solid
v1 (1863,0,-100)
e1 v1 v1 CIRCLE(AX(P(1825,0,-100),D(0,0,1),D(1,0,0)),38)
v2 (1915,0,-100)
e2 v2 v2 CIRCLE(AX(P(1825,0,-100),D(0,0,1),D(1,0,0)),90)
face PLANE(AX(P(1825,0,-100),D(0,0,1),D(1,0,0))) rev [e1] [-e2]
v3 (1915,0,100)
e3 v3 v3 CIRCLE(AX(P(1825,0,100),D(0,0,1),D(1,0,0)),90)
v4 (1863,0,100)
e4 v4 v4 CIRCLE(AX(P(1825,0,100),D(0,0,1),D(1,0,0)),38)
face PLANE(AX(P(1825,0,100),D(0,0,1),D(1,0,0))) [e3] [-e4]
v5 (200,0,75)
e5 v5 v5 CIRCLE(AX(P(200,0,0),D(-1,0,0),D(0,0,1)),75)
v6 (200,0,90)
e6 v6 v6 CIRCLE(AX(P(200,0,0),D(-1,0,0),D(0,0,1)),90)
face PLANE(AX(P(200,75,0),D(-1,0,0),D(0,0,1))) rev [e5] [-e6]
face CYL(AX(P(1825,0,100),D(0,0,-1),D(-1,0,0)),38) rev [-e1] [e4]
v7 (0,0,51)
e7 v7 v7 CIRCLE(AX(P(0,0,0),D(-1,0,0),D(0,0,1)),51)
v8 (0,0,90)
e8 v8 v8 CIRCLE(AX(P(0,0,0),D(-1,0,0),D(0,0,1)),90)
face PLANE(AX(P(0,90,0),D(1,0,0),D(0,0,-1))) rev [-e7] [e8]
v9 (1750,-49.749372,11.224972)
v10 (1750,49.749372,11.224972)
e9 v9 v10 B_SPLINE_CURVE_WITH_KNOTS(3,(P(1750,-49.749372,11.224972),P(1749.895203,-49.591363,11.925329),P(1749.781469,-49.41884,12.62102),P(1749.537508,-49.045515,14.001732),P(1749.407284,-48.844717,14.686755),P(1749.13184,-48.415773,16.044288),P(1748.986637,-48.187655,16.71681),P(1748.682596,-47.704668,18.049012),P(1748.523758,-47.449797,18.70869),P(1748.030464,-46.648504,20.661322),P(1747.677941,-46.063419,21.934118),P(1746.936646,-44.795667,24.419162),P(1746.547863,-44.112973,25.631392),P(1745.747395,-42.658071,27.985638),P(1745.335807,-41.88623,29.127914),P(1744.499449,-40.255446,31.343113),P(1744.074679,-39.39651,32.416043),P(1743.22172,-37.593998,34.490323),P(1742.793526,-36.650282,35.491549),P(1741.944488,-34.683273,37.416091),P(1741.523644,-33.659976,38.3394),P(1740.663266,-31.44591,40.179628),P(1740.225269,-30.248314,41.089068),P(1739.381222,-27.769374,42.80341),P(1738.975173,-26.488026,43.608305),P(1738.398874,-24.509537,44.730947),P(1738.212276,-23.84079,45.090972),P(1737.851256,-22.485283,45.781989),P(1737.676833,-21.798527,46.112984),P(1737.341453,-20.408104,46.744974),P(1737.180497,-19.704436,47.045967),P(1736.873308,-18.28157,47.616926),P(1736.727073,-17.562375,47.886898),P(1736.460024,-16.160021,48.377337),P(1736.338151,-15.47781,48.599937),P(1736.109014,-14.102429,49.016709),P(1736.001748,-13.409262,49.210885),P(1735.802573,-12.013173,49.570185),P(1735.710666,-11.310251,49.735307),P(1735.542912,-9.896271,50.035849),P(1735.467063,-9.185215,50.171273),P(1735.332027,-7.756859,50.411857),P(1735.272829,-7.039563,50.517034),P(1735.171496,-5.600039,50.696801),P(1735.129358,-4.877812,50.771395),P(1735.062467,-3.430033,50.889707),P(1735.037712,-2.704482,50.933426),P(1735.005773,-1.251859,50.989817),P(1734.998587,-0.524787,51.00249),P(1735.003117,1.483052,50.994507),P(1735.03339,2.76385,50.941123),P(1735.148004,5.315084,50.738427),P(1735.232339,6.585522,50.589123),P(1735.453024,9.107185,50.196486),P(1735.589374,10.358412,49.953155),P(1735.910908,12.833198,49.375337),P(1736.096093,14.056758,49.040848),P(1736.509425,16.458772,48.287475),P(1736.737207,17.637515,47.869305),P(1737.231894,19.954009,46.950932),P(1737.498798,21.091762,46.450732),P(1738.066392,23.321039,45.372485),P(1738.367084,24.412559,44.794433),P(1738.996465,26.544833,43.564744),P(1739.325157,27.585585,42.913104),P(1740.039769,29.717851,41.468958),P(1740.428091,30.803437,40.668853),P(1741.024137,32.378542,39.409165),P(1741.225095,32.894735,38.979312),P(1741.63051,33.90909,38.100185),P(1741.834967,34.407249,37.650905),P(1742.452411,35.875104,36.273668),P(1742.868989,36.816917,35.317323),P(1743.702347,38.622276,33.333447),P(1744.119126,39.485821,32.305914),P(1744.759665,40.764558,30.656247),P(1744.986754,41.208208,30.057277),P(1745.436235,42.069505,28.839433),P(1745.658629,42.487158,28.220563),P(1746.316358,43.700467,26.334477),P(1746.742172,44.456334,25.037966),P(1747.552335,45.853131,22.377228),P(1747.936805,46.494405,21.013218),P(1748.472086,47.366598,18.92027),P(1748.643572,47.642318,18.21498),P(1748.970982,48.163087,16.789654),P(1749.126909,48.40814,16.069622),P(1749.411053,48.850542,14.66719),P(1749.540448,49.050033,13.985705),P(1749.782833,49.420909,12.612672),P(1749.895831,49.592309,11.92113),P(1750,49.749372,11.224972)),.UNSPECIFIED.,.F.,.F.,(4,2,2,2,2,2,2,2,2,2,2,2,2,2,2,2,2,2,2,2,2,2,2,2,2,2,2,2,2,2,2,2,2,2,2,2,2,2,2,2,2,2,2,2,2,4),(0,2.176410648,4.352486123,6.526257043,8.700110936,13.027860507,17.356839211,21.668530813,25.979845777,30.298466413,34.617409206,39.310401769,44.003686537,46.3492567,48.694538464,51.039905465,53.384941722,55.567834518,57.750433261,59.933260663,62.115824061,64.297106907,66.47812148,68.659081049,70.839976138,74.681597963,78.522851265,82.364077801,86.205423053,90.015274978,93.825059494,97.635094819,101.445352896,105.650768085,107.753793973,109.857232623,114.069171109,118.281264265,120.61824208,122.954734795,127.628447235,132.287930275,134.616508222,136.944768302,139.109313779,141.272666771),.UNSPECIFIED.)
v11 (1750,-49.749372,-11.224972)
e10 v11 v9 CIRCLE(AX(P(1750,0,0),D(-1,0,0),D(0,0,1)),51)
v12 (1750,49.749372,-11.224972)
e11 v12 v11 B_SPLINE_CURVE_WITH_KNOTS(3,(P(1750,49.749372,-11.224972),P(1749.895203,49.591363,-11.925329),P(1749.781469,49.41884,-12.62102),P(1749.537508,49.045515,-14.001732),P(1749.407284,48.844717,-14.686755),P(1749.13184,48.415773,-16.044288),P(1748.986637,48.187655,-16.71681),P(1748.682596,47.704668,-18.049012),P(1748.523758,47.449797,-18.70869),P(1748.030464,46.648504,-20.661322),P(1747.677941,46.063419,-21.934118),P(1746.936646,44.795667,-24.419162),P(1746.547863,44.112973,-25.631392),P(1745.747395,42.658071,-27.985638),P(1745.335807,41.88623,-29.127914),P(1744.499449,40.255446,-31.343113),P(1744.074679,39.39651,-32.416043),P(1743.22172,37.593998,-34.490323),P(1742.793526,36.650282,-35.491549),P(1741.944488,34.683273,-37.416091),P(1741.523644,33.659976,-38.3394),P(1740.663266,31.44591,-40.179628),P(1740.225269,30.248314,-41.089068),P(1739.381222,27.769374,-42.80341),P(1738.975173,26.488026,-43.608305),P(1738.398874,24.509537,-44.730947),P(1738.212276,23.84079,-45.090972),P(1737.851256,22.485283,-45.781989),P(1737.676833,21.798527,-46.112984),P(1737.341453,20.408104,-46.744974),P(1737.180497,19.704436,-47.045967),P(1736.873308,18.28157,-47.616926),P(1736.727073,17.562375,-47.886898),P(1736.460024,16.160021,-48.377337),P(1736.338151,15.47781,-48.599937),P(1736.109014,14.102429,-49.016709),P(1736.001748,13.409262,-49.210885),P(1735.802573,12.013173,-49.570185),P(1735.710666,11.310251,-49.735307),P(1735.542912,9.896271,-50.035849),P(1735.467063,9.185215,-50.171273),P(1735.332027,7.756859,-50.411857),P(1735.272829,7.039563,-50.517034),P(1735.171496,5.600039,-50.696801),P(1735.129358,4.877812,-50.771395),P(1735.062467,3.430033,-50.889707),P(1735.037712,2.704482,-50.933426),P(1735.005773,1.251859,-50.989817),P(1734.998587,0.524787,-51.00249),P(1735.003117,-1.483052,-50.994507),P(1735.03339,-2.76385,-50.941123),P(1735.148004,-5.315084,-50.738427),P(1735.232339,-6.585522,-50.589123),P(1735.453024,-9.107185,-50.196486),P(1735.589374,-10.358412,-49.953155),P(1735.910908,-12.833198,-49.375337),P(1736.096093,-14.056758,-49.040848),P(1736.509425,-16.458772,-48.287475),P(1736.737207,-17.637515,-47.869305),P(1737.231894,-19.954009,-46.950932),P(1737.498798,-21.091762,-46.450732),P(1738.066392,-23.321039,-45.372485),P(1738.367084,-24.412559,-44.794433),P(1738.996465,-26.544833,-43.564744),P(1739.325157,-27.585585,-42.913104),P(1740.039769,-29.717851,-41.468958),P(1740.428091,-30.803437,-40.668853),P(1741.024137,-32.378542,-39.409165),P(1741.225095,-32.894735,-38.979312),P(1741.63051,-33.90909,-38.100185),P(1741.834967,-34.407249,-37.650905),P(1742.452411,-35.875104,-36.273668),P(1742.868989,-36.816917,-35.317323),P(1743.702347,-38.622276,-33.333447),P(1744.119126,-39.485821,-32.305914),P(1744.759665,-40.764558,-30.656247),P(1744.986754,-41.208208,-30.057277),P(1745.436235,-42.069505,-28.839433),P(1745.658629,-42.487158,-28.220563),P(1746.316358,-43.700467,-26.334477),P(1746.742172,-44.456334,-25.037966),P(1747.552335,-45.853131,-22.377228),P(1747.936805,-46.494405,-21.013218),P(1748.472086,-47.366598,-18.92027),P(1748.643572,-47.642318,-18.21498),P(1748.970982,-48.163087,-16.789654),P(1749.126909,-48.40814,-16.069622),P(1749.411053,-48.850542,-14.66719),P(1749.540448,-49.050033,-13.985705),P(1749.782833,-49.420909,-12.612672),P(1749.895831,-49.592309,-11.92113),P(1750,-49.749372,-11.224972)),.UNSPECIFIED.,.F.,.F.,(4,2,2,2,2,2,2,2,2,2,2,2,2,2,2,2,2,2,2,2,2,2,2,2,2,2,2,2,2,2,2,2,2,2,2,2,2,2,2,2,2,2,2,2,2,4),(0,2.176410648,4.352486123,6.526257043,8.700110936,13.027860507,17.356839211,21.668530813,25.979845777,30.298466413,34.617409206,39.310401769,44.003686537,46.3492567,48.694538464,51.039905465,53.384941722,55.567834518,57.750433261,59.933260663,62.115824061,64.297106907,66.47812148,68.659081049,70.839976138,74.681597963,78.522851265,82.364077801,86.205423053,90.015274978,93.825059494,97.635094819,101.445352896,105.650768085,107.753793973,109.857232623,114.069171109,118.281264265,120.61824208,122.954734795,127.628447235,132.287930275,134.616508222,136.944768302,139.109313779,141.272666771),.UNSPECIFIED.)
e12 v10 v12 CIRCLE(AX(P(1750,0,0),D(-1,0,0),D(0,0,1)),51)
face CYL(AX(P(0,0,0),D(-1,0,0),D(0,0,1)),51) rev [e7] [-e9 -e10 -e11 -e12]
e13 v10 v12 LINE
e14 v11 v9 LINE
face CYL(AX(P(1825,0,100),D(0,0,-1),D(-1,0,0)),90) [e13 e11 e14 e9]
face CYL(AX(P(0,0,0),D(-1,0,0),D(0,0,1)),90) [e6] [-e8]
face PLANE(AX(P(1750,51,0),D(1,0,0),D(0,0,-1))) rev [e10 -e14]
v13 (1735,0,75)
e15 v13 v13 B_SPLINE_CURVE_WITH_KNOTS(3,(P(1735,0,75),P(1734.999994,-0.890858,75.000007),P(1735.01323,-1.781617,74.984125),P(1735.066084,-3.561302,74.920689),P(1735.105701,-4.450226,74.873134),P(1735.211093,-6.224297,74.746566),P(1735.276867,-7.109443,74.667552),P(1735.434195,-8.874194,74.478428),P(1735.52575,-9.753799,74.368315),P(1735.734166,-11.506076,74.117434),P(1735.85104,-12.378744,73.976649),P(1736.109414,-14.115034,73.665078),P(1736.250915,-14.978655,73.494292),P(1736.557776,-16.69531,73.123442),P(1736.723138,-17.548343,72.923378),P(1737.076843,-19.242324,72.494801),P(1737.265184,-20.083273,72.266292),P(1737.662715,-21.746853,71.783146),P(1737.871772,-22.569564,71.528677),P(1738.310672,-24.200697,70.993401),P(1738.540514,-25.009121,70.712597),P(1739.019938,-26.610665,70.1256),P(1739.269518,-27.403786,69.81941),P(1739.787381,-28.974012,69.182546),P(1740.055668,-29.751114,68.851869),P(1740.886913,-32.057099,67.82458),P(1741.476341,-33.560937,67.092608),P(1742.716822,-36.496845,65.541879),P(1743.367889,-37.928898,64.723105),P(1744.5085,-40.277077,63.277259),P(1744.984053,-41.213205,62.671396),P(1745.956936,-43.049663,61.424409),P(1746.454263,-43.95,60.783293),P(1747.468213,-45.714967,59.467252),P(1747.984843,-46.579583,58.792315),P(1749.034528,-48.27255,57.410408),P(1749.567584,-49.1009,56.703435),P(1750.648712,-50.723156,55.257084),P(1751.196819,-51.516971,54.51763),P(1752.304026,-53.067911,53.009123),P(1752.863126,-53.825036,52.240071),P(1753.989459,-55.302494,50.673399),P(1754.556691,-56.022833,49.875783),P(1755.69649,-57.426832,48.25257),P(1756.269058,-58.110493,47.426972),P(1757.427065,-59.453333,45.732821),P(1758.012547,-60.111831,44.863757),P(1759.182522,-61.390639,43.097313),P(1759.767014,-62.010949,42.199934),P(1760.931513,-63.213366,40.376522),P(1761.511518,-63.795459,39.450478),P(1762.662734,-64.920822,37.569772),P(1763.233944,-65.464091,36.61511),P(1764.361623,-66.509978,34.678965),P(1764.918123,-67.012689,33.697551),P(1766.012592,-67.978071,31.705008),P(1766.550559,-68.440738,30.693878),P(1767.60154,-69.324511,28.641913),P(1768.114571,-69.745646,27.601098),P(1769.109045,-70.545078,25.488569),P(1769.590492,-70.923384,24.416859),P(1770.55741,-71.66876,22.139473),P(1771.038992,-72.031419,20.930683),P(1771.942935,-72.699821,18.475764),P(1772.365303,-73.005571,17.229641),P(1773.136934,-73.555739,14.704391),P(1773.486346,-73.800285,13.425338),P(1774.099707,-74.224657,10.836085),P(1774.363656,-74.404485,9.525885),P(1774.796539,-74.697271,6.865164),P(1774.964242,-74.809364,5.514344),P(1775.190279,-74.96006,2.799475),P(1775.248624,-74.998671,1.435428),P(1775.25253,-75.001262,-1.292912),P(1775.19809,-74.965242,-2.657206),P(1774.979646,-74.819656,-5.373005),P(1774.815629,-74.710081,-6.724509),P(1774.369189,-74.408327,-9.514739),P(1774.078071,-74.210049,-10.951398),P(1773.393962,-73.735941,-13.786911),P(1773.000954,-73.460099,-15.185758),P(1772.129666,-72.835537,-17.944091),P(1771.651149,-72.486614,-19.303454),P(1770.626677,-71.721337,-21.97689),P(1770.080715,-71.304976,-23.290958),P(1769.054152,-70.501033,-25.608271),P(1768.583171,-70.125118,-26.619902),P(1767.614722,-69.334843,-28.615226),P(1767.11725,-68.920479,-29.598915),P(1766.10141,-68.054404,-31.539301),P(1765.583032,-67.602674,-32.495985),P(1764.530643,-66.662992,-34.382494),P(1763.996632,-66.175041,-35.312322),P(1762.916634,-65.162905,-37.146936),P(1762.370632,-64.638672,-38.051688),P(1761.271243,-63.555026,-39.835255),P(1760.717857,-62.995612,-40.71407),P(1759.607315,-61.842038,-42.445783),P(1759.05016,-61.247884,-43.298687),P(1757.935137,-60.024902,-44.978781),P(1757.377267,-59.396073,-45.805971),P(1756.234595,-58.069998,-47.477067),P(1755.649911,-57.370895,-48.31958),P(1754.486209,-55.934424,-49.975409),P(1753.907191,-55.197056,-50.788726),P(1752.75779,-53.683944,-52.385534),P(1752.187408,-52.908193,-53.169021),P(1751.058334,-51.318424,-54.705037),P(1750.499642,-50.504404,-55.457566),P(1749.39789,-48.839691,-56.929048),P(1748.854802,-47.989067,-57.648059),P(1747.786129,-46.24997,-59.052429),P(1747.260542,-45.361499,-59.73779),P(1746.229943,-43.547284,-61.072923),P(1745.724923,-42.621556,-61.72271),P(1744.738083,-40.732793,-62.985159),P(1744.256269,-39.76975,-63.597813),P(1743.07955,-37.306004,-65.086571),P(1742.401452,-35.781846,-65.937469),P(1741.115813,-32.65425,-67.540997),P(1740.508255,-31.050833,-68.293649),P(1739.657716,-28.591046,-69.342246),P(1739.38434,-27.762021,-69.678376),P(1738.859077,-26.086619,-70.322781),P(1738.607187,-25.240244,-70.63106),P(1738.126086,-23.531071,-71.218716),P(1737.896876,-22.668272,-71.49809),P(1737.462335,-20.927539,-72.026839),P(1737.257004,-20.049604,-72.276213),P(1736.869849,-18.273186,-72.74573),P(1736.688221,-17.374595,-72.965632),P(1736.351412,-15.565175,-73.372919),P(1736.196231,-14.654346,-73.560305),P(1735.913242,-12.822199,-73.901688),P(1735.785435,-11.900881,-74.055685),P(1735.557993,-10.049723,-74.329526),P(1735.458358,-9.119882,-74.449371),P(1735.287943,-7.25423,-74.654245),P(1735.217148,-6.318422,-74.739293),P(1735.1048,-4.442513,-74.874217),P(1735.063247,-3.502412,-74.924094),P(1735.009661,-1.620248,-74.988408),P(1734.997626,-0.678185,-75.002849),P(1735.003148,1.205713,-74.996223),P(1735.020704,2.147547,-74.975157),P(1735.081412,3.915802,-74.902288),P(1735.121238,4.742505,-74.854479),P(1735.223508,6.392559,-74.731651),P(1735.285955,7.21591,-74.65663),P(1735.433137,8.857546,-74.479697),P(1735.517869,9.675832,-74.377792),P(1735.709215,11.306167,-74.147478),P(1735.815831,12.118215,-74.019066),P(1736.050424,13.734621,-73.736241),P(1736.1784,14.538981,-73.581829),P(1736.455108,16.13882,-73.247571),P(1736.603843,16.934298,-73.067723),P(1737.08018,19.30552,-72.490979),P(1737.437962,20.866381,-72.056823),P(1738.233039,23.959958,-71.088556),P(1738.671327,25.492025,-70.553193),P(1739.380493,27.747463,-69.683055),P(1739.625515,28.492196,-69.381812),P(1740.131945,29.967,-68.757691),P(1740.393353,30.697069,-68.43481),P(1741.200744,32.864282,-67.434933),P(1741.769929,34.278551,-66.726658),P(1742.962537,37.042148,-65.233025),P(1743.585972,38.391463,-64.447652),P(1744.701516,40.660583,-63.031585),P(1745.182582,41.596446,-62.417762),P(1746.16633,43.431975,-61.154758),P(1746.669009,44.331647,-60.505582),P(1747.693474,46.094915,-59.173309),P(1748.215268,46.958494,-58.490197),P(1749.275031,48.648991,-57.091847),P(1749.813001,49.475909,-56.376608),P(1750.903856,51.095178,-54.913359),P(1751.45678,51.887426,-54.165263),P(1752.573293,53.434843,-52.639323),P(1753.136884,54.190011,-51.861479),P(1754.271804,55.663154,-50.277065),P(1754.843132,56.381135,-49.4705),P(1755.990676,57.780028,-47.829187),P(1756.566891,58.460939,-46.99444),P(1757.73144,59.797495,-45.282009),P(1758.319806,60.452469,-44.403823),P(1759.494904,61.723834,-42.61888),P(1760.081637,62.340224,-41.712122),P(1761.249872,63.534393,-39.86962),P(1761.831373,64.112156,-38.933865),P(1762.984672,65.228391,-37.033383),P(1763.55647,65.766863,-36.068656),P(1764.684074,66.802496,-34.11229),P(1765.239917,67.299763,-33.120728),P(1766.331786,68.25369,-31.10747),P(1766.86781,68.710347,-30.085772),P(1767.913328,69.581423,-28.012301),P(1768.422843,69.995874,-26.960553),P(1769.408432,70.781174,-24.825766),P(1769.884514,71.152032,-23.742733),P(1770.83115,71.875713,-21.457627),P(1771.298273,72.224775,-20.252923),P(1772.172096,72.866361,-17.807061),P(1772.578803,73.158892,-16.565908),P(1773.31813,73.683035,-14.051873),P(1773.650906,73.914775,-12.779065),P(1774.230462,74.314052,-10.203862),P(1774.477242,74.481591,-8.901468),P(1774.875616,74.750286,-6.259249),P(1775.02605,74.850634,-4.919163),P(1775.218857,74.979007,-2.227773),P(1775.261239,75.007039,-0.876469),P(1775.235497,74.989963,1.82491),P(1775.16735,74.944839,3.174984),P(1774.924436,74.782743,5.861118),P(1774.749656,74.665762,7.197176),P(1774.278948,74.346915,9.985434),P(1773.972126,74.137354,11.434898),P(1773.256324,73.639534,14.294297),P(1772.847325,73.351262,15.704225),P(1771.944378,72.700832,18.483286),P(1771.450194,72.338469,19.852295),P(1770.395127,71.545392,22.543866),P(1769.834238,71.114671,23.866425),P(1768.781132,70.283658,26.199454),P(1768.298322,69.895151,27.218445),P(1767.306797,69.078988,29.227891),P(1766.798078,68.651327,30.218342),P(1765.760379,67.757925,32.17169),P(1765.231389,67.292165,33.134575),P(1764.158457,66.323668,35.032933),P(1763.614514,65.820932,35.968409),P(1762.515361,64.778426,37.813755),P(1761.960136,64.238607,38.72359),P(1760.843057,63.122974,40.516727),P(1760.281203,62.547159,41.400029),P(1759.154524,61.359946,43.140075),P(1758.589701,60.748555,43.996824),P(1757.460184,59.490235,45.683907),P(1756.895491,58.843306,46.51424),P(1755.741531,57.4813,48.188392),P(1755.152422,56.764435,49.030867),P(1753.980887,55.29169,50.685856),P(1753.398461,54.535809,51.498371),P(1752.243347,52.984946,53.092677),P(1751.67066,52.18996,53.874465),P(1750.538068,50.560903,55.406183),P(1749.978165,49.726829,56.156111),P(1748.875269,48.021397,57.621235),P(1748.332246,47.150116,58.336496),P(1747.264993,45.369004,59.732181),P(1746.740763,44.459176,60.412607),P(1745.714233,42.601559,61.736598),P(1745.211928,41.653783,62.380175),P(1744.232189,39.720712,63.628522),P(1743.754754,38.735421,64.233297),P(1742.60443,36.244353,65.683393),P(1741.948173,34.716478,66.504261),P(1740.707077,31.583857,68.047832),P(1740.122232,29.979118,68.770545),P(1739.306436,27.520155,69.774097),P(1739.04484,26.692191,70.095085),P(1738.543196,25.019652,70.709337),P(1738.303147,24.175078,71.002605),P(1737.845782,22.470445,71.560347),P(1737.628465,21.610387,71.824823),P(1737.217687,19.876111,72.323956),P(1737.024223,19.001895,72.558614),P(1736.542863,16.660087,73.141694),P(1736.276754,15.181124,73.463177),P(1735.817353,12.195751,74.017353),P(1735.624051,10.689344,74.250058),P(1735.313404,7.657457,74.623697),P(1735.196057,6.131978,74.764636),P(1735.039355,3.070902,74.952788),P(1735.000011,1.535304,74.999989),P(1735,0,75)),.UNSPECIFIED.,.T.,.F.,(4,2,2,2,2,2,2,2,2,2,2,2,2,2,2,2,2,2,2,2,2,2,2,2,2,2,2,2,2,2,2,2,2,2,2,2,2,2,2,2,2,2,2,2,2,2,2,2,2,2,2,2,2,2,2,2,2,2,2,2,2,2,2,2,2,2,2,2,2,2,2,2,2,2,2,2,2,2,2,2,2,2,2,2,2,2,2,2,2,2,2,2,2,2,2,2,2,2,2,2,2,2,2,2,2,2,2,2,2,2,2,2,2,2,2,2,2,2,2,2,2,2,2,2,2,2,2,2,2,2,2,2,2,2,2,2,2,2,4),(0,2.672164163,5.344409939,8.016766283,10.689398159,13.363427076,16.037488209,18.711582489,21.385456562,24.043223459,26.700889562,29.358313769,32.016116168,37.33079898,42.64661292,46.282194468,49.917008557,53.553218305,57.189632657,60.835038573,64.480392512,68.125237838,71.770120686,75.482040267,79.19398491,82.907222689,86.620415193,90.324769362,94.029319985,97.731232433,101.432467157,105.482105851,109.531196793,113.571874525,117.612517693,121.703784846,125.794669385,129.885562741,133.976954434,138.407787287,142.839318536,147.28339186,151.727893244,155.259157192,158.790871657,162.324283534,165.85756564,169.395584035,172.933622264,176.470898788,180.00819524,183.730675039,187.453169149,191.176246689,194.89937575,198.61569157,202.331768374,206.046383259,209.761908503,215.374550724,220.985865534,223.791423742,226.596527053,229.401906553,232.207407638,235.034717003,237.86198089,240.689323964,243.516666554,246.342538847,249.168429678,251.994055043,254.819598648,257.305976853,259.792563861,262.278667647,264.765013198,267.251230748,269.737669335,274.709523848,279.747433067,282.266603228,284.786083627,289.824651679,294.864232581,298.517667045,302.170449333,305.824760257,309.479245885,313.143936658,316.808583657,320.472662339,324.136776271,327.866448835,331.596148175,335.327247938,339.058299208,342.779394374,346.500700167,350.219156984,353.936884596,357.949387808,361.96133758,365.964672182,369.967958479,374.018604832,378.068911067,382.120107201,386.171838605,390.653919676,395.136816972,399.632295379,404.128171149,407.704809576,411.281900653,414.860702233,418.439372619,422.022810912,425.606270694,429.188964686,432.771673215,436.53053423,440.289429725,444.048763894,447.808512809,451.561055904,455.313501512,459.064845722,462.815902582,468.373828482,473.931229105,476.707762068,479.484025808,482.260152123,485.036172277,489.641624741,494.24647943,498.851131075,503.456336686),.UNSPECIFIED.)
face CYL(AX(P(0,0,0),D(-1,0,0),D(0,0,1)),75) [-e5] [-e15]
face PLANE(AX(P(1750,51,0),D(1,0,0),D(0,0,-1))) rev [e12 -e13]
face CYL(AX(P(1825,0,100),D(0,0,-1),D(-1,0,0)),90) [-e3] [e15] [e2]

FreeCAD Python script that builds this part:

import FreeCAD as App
import Part
import Sketcher

V = App.Vector
Q = App.Units.Quantity


def add_polygon(sketch, points):
    """Adds a closed chain of lines whose ends are joined by coincident constraints."""
    first, n = sketch.GeometryCount, len(points)
    for a, b in zip(points, points[1:] + points[:1]):
        sketch.addGeometry(Part.LineSegment(App.Vector(*a, 0), App.Vector(*b, 0)), False)
    for i in range(n):
        sketch.addConstraint(Sketcher.Constraint("Coincident", first + i, 2, first + (i + 1) % n, 1))

doc = App.newDocument("Part")
body = doc.addObject("PartDesign::Body", "Body")

# Sketch on XY plane
sketch1 = body.newObject("Sketcher::SketchObject", "Sketch")
sketch1.AttachmentSupport = (doc.getObject("XY_Plane"), [""])
sketch1.MapMode = "FlatFace"
add_polygon(sketch1, [(1825, 0), (1825, 75), (200, 75), (200, 90), (0, 90), (0, 51), (1750, 51), (1750, 0)])  # lines 0-7
sketch1.addConstraint([
    Sketcher.Constraint("Vertical", 0),
    Sketcher.Constraint("Horizontal", 1),
    Sketcher.Constraint("Vertical", 2),
    Sketcher.Constraint("Horizontal", 3),
    Sketcher.Constraint("Vertical", 4),
    Sketcher.Constraint("Horizontal", 5),
    Sketcher.Constraint("Vertical", 6),
    Sketcher.Constraint("Horizontal", 7),
    Sketcher.Constraint("PointOnObject", 3, 2, -2),
    Sketcher.Constraint("PointOnObject", 6, 2, -1),
    Sketcher.Constraint("Equal", 7, 0),
    Sketcher.Constraint("DistanceX", 1, 2, 1, 1, Q("1625 mm")),
    Sketcher.Constraint("DistanceX", 3, 2, 3, 1, Q("200 mm")),
    Sketcher.Constraint("DistanceX", 5, 1, 5, 2, Q("1750 mm")),
    Sketcher.Constraint("DistanceY", 2, 1, 2, 2, Q("15 mm")),
    Sketcher.Constraint("DistanceY", 4, 2, 4, 1, Q("39 mm")),
])
revolution = body.newObject("PartDesign::Revolution", "Revolution")
revolution.Profile = sketch1
revolution.ReferenceAxis = (sketch1, ["H_Axis"])
revolution.Angle = 360

# Sketch on XY plane
sketch2 = body.newObject("Sketcher::SketchObject", "Sketch001")
sketch2.AttachmentSupport = (doc.getObject("XY_Plane"), [""])
sketch2.MapMode = "FlatFace"
sketch2.addGeometry([
    Part.Circle(V(1825, 0, 0), V(0, 0, 1), 90),
    Part.Circle(V(1825, 0, 0), V(0, 0, 1), 38),
], False)
sketch2.addConstraint([
    Sketcher.Constraint("Coincident", 1, 3, 0, 3),
    Sketcher.Constraint("PointOnObject", 0, 3, -1),
    Sketcher.Constraint("Diameter", 0, Q("180 mm")),
    Sketcher.Constraint("Diameter", 1, Q("76 mm")),
    Sketcher.Constraint("DistanceX", -1, 1, 0, 3, Q("1825 mm")),
])
pad1 = body.newObject("PartDesign::Pad", "Pad")
pad1.Profile = sketch2
pad1.Length = 200
pad1.Midplane = True

# Sketch on XY plane
sketch3 = body.newObject("Sketcher::SketchObject", "Sketch002")
sketch3.AttachmentSupport = (doc.getObject("XY_Plane"), [""])
sketch3.MapMode = "FlatFace"
sketch3.addGeometry(Part.Circle(V(1825, 0, 0), V(0, 0, 1), 38), False)
sketch3.addConstraint([
    Sketcher.Constraint("PointOnObject", 0, 3, -1),
    Sketcher.Constraint("Diameter", 0, Q("76 mm")),
    Sketcher.Constraint("DistanceX", -1, 1, 0, 3, Q("1825 mm")),
])
pocket1 = body.newObject("PartDesign::Pocket", "Pocket")
pocket1.Profile = sketch3
pocket1.Type = "ThroughAll"
pocket1.Midplane = True

doc.recompute()
